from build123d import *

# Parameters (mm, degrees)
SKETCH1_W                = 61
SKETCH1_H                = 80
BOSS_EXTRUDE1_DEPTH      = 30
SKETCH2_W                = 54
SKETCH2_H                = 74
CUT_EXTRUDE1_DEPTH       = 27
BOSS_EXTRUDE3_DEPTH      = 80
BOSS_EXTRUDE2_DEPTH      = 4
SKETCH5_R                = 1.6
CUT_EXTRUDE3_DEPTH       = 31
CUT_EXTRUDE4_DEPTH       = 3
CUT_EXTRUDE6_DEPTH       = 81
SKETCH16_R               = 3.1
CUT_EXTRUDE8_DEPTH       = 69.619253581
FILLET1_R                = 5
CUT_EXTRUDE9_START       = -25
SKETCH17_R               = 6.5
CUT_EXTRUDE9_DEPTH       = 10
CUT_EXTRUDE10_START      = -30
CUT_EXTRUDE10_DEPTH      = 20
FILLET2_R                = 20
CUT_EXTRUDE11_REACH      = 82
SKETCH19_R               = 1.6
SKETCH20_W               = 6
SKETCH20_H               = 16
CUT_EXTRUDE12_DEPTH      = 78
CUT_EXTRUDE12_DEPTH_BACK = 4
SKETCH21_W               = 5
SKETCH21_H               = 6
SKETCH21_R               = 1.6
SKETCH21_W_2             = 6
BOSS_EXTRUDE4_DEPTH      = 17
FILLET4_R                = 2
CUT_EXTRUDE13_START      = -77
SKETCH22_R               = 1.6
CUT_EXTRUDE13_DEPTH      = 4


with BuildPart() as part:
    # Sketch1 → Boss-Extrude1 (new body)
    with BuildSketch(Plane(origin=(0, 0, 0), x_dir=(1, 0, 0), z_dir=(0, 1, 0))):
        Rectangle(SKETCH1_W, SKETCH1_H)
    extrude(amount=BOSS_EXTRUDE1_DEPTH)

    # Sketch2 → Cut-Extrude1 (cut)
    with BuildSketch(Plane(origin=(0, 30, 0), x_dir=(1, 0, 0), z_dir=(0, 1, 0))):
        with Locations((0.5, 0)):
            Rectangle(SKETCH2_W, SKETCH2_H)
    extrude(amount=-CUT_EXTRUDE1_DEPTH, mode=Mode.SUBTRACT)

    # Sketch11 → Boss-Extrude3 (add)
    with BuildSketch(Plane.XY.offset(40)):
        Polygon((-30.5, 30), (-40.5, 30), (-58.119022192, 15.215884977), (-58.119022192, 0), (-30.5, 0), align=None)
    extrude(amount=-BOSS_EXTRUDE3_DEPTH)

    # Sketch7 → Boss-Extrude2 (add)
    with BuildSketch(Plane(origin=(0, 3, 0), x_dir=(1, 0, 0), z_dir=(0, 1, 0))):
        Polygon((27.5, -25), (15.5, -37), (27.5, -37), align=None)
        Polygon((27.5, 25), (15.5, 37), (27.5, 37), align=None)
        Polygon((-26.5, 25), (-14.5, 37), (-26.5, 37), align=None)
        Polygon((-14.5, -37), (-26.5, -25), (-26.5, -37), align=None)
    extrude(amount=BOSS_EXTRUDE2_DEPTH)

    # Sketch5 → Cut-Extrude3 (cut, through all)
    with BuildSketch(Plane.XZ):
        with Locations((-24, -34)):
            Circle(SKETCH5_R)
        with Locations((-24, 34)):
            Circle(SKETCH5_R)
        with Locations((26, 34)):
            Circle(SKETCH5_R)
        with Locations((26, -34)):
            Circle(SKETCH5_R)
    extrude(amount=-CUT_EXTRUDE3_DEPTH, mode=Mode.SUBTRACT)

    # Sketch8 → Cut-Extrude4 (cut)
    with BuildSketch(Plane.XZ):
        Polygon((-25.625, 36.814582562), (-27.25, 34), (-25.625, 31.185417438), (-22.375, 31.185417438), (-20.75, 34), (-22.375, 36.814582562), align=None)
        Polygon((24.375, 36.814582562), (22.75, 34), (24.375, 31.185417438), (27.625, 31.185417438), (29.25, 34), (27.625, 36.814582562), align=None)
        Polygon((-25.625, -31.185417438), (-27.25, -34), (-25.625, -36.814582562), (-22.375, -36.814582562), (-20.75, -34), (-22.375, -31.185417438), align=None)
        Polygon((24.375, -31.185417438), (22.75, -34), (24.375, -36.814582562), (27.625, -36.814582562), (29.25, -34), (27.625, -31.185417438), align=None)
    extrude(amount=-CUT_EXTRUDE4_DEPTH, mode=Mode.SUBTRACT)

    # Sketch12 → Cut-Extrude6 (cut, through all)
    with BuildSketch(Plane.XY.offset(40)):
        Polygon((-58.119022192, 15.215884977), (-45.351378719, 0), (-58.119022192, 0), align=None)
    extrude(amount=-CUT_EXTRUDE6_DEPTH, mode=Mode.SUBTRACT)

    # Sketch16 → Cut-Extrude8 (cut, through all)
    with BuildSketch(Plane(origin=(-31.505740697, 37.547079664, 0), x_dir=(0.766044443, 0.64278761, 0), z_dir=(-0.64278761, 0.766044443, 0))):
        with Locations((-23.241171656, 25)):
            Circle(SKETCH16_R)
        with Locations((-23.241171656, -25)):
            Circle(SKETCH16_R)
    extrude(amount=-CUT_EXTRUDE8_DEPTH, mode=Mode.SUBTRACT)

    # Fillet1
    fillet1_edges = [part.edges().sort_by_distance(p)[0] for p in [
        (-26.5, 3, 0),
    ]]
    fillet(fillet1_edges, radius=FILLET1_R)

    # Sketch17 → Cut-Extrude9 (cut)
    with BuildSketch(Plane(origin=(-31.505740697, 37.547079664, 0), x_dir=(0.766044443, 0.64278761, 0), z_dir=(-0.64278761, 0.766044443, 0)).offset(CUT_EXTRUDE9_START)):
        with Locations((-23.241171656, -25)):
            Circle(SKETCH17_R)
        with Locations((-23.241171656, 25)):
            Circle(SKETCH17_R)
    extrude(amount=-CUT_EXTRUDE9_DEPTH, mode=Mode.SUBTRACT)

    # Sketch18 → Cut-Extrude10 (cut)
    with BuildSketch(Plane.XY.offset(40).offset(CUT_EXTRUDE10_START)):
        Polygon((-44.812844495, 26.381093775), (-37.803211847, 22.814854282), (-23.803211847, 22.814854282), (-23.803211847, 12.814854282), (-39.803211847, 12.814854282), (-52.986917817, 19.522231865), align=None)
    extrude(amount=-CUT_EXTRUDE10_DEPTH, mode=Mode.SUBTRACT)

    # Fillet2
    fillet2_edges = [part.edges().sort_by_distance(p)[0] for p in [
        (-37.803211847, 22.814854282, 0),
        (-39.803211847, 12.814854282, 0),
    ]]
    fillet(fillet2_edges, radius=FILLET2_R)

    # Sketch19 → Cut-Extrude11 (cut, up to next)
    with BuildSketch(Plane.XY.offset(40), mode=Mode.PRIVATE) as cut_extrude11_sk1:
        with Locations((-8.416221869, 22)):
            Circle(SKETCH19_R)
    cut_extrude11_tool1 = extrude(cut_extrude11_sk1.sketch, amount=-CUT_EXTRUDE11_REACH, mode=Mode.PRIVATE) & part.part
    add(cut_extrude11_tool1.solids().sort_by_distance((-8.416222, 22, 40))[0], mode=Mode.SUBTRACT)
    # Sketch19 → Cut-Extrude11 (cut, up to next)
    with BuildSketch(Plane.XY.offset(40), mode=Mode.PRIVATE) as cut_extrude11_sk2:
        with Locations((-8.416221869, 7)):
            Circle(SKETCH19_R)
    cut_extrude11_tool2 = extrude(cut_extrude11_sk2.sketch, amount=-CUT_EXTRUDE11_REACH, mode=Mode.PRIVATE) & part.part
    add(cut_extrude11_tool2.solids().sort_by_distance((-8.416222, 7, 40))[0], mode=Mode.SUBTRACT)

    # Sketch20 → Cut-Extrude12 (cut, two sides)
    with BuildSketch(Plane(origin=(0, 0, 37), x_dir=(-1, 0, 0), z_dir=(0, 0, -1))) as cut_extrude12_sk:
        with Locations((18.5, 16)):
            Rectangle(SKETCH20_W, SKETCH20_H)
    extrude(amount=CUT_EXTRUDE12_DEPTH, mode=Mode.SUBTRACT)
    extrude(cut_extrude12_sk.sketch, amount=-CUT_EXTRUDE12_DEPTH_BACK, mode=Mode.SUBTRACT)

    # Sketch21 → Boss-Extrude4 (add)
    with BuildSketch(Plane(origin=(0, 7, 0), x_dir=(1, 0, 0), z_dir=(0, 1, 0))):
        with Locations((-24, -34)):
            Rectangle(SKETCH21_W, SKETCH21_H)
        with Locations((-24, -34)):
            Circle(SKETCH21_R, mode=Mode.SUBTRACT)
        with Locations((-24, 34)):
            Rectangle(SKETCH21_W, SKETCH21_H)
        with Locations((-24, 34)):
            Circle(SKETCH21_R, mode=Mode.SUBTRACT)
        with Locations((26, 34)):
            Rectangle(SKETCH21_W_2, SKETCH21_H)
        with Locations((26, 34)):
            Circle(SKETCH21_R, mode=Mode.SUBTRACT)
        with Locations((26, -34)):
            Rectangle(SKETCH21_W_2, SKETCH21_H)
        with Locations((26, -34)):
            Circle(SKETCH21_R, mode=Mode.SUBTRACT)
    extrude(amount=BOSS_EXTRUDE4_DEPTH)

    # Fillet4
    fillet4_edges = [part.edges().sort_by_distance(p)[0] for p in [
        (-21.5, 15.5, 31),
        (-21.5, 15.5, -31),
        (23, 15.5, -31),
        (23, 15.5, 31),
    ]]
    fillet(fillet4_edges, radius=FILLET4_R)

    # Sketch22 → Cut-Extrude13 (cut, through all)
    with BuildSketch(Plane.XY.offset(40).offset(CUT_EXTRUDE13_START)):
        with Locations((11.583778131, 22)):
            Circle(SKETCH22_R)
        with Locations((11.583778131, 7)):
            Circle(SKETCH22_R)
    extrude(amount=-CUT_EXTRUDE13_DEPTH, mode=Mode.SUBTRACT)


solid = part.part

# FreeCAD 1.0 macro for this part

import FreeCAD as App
import Part
import Sketcher

V = App.Vector
Q = App.Units.Quantity


def edges_at(feature, points):
    """Names of the edges that pass closest to the given points."""
    edges = feature.Shape.Edges
    near = lambda p: min(range(len(edges)), key=lambda i: edges[i].distToShape(Part.Vertex(*p))[0])
    return sorted({f"Edge{near(p) + 1}" for p in points})


def add_polygon(sketch, points):
    """Adds a closed chain of lines whose ends are joined by coincident constraints."""
    first, n = sketch.GeometryCount, len(points)
    for a, b in zip(points, points[1:] + points[:1]):
        sketch.addGeometry(Part.LineSegment(App.Vector(*a, 0), App.Vector(*b, 0)), False)
    for i in range(n):
        sketch.addConstraint(Sketcher.Constraint("Coincident", first + i, 2, first + (i + 1) % n, 1))

doc = App.newDocument("Part")
body = doc.addObject("PartDesign::Body", "Body")

sketch1 = body.newObject("Sketcher::SketchObject", "Sketch")
sketch1.AttachmentSupport = (doc.getObject("XZ_Plane"), [""])
sketch1.MapMode = "FlatFace"
add_polygon(sketch1, [(-30, -40), (-30, 40), (30, 40), (30, -40)])
sketch1.addConstraint([
    Sketcher.Constraint("Vertical", 0),
    Sketcher.Constraint("Horizontal", 1),
    Sketcher.Constraint("Vertical", 2),
    Sketcher.Constraint("Horizontal", 3),
    Sketcher.Constraint("Symmetric", 0, 2, 2, 2, -1, 1),
    Sketcher.Constraint("DistanceX", 1, 1, 1, 2, Q("61 mm")),
    Sketcher.Constraint("DistanceY", 0, 1, 0, 2, Q("80 mm")),
])
pad1 = body.newObject("PartDesign::Pad", "Pad")
pad1.Profile = sketch1
pad1.Length = 30
pad1.Reversed = True

sketch2 = body.newObject("Sketcher::SketchObject", "Sketch001")
sketch2.AttachmentSupport = (doc.getObject("XZ_Plane"), [""])
sketch2.MapMode = "FlatFace"
sketch2.AttachmentOffset = App.Placement(V(0, 0, -30), App.Rotation())
add_polygon(sketch2, [(-26, -37), (-26, 37), (28, 37), (28, -37)])
sketch2.addConstraint([
    Sketcher.Constraint("Vertical", 0),
    Sketcher.Constraint("Horizontal", 1),
    Sketcher.Constraint("Vertical", 2),
    Sketcher.Constraint("Horizontal", 3),
    Sketcher.Constraint("DistanceX", 1, 1, 1, 2, Q("54 mm")),
    Sketcher.Constraint("DistanceY", 0, 1, 0, 2, Q("74 mm")),
    Sketcher.Constraint("DistanceY", -1, 1, 0, 2, Q("37 mm")),
    Sketcher.Constraint("DistanceX", 0, 2, -1, 1, Q("26.5 mm")),
])
pocket1 = body.newObject("PartDesign::Pocket", "Pocket")
pocket1.Profile = sketch2
pocket1.Length = 27
pocket1.Reversed = True

sketch3 = body.newObject("Sketcher::SketchObject", "Sketch002")
sketch3.AttachmentSupport = (doc.getObject("XY_Plane"), [""])
sketch3.MapMode = "FlatFace"
sketch3.AttachmentOffset = App.Placement(V(0, 0, 40), App.Rotation())
add_polygon(sketch3, [(-30, 30), (-40, 30), (-58, 15), (-58, 0), (-30, 0)])
sketch3.addConstraint([
    Sketcher.Constraint("Horizontal", 0),
    Sketcher.Constraint("Vertical", 2),
    Sketcher.Constraint("Horizontal", 3),
    Sketcher.Constraint("Vertical", 4),
    Sketcher.Constraint("PointOnObject", 2, 2, -1),
    Sketcher.Constraint("DistanceX", 0, 2, 0, 1, Q("10 mm")),
    Sketcher.Constraint("DistanceY", 4, 1, 4, 2, Q("30 mm")),
    Sketcher.Constraint("Angle", 1, Q("-140 deg")),
    Sketcher.Constraint("Distance", 1, Q("23 mm")),
    Sketcher.Constraint("DistanceX", 0, 2, -1, 1, Q("40.5 mm")),
])
pad2 = body.newObject("PartDesign::Pad", "Pad001")
pad2.Profile = sketch3
pad2.Length = 80
pad2.Reversed = True

sketch4 = body.newObject("Sketcher::SketchObject", "Sketch003")
sketch4.AttachmentSupport = (doc.getObject("XZ_Plane"), [""])
sketch4.MapMode = "FlatFace"
sketch4.AttachmentOffset = App.Placement(V(0, 0, -3), App.Rotation())
add_polygon(sketch4, [(28, 25), (16, 37), (28, 37)])
add_polygon(sketch4, [(16, -37), (28, -25), (28, -37)])
add_polygon(sketch4, [(-26, -25), (-14, -37), (-26, -37)])
add_polygon(sketch4, [(-14, 37), (-26, 25), (-26, 37)])
sketch4.addConstraint([
    Sketcher.Constraint("Horizontal", 1),
    Sketcher.Constraint("Vertical", 2),
    Sketcher.Constraint("Vertical", 4),
    Sketcher.Constraint("Horizontal", 5),
    Sketcher.Constraint("Horizontal", 7),
    Sketcher.Constraint("Vertical", 8),
    Sketcher.Constraint("Vertical", 10),
    Sketcher.Constraint("Horizontal", 11),
    Sketcher.Constraint("Symmetric", 2, 2, 3, 2, -1),
    Sketcher.Constraint("Symmetric", 0, 2, 5, 2, -1),
    Sketcher.Constraint("Symmetric", 8, 2, 9, 2, -1),
    Sketcher.Constraint("Symmetric", 6, 2, 11, 2, -1),
    Sketcher.Constraint("Perpendicular", 0, 3),
    Sketcher.Constraint("Perpendicular", 3, 6),
    Sketcher.Constraint("Horizontal", 5, 2, 6, 2),
    Sketcher.Constraint("Horizontal", 3, 2, 8, 2),
    Sketcher.Constraint("DistanceX", 1, 1, 1, 2, Q("12 mm")),
    Sketcher.Constraint("DistanceY", -1, 1, 0, 2, Q("37 mm")),
    Sketcher.Constraint("DistanceX", 6, 2, 5, 2, Q("30 mm")),
    Sketcher.Constraint("DistanceX", -1, 1, 0, 2, Q("15.5 mm")),
])
pad3 = body.newObject("PartDesign::Pad", "Pad002")
pad3.Profile = sketch4
pad3.Length = 4
pad3.Reversed = True

sketch5 = body.newObject("Sketcher::SketchObject", "Sketch004")
sketch5.AttachmentSupport = (doc.getObject("XZ_Plane"), [""])
sketch5.MapMode = "FlatFace"
sketch5.addGeometry([
    Part.Circle(V(-24, -34, 0), V(0, 0, 1), 1.6),
    Part.Circle(V(-24, 34, 0), V(0, 0, 1), 1.6),
    Part.Circle(V(26, 34, 0), V(0, 0, 1), 1.6),
    Part.Circle(V(26, -34, 0), V(0, 0, 1), 1.6),
], False)
sketch5.addConstraint([
    Sketcher.Constraint("Equal", 0, 1),
    Sketcher.Constraint("Equal", 1, 2),
    Sketcher.Constraint("Equal", 2, 3),
    Sketcher.Constraint("Symmetric", 0, 3, 1, 3, -1),
    Sketcher.Constraint("Symmetric", 2, 3, 3, 3, -1),
    Sketcher.Constraint("Horizontal", 1, 3, 2, 3),
    Sketcher.Constraint("Diameter", 0, Q("3.2 mm")),
    Sketcher.Constraint("DistanceX", 0, 3, -1, 1, Q("24 mm")),
    Sketcher.Constraint("DistanceY", 0, 3, -1, 1, Q("34 mm")),
    Sketcher.Constraint("DistanceX", -1, 1, 2, 3, Q("26 mm")),
])
pocket2 = body.newObject("PartDesign::Pocket", "Pocket001")
pocket2.Profile = sketch5
pocket2.Type = "ThroughAll"

sketch6 = body.newObject("Sketcher::SketchObject", "Sketch005")
sketch6.AttachmentSupport = (doc.getObject("XZ_Plane"), [""])
sketch6.MapMode = "FlatFace"
add_polygon(sketch6, [(-25.6, 36.8), (-27.2, 34), (-25.6, 31.2), (-22.4, 31.2), (-20.8, 34), (-22.4, 36.8)])
add_polygon(sketch6, [(24.4, 36.8), (22.8, 34), (24.4, 31.2), (27.6, 31.2), (29.2, 34), (27.6, 36.8)])
add_polygon(sketch6, [(-25.6, -31.2), (-27.2, -34), (-25.6, -36.8), (-22.4, -36.8), (-20.8, -34), (-22.4, -31.2)])
add_polygon(sketch6, [(24.4, -31.2), (22.8, -34), (24.4, -36.8), (27.6, -36.8), (29.2, -34), (27.6, -31.2)])
sketch6.addConstraint([
    Sketcher.Constraint("Horizontal", 2),
    Sketcher.Constraint("Horizontal", 5),
    Sketcher.Constraint("Horizontal", 8),
    Sketcher.Constraint("Horizontal", 11),
    Sketcher.Constraint("Horizontal", 14),
    Sketcher.Constraint("Horizontal", 17),
    Sketcher.Constraint("Horizontal", 20),
    Sketcher.Constraint("Horizontal", 23),
    Sketcher.Constraint("Symmetric", 0, 2, 12, 2, -1),
    Sketcher.Constraint("Symmetric", 5, 2, 13, 2, -1),
    Sketcher.Constraint("Symmetric", 3, 2, 15, 2, -1),
    Sketcher.Constraint("Symmetric", 2, 2, 16, 2, -1),
    Sketcher.Constraint("Symmetric", 6, 2, 18, 2, -1),
    Sketcher.Constraint("Symmetric", 11, 2, 19, 2, -1),
    Sketcher.Constraint("Symmetric", 9, 2, 21, 2, -1),
    Sketcher.Constraint("Symmetric", 8, 2, 22, 2, -1),
    Sketcher.Constraint("Parallel", 0, 3),
    Sketcher.Constraint("Parallel", 1, 4),
    Sketcher.Constraint("Parallel", 3, 6),
    Sketcher.Constraint("Parallel", 4, 7),
    Sketcher.Constraint("Parallel", 6, 9),
    Sketcher.Constraint("Parallel", 7, 10),
    Sketcher.Constraint("Parallel", 9, 12),
    Sketcher.Constraint("Parallel", 10, 13),
    Sketcher.Constraint("Parallel", 12, 15),
    Sketcher.Constraint("Parallel", 15, 18),
    Sketcher.Constraint("Parallel", 18, 21),
    Sketcher.Constraint("Horizontal", 0, 2, 3, 2),
    Sketcher.Constraint("Horizontal", 3, 2, 6, 2),
    Sketcher.Constraint("Horizontal", 2, 2, 7, 2),
    Sketcher.Constraint("Horizontal", 6, 2, 9, 2),
    Sketcher.Constraint("Horizontal", 5, 2, 10, 2),
    Sketcher.Constraint("Vertical", 2, 2, 4, 2),
    Sketcher.Constraint("Equal", 5, 8),
    Sketcher.Constraint("Angle", 0, Q("-120 deg")),
    Sketcher.Constraint("DistanceY", -1, 1, 0, 2, Q("34 mm")),
    Sketcher.Constraint("DistanceX", 1, 2, 7, 2, Q("50 mm")),
    Sketcher.Constraint("DistanceX", 2, 1, 2, 2, Q("3.25 mm")),
    Sketcher.Constraint("DistanceX", 0, 2, 3, 2, Q("6.5 mm")),
    Sketcher.Constraint("DistanceX", 0, 2, -1, 1, Q("27.25 mm")),
])
pocket3 = body.newObject("PartDesign::Pocket", "Pocket002")
pocket3.Profile = sketch6
pocket3.Length = 3

sketch7 = body.newObject("Sketcher::SketchObject", "Sketch006")
sketch7.AttachmentSupport = (doc.getObject("XY_Plane"), [""])
sketch7.MapMode = "FlatFace"
sketch7.AttachmentOffset = App.Placement(V(0, 0, 40), App.Rotation())
add_polygon(sketch7, [(-45, 0), (-58, 15), (-58, 0)])
sketch7.addConstraint([
    Sketcher.Constraint("Vertical", 1),
    Sketcher.Constraint("Horizontal", 2),
    Sketcher.Constraint("PointOnObject", 1, 2, -1),
    Sketcher.Constraint("Angle", 0, Q("130 deg")),
    Sketcher.Constraint("DistanceX", 2, 1, 2, 2, Q("12.767643 mm")),
    Sketcher.Constraint("DistanceX", 2, 2, -1, 1, Q("45.351379 mm")),
])
pocket4 = body.newObject("PartDesign::Pocket", "Pocket003")
pocket4.Profile = sketch7
pocket4.Type = "ThroughAll"

sketch8 = body.newObject("Sketcher::SketchObject", "Sketch007")
sketch8.Placement = App.Placement(V(-31.505741, 37.54708, 0), App.Rotation(V(0.766044443, 0.64278761, 0), V(0, 0, -1), V(-0.64278761, 0.766044443, 0), "ZXY"))
sketch8.addGeometry([
    Part.Circle(V(-23.2, 25, 0), V(0, 0, 1), 3.1),
    Part.Circle(V(-23.2, -25, 0), V(0, 0, 1), 3.1),
], False)
sketch8.addConstraint([
    Sketcher.Constraint("Equal", 0, 1),
    Sketcher.Constraint("Symmetric", 0, 3, 1, 3, -1),
    Sketcher.Constraint("Diameter", 0, Q("6.2 mm")),
    Sketcher.Constraint("DistanceY", -1, 1, 0, 3, Q("25 mm")),
    Sketcher.Constraint("DistanceX", 0, 3, -1, 1, Q("23.241172 mm")),
])
pocket5 = body.newObject("PartDesign::Pocket", "Pocket004")
pocket5.Profile = sketch8
pocket5.Type = "ThroughAll"
doc.recompute()

fillet = body.newObject("PartDesign::Fillet", "Fillet")
fillet.Base = (pocket5, edges_at(pocket5, [(-26.5, 3, 0)]))
fillet.Radius = 5

sketch9 = body.newObject("Sketcher::SketchObject", "Sketch008")
sketch9.Placement = App.Placement(V(-15.43605, 18.395969, 0), App.Rotation(V(0.766044443, 0.64278761, 0), V(0, 0, -1), V(-0.64278761, 0.766044443, 0), "ZXY"))
sketch9.addGeometry([
    Part.Circle(V(-23, -25, 0), V(0, 0, 1), 6),
    Part.Circle(V(-23, 25, 0), V(0, 0, 1), 6),
], False)
sketch9.addConstraint([
    Sketcher.Constraint("Equal", 0, 1),
    Sketcher.Constraint("Symmetric", 0, 3, 1, 3, -1),
    Sketcher.Constraint("Diameter", 0, Q("13 mm")),
    Sketcher.Constraint("DistanceY", 0, 3, -1, 1, Q("25 mm")),
    Sketcher.Constraint("DistanceX", 0, 3, -1, 1, Q("23.241172 mm")),
])
pocket6 = body.newObject("PartDesign::Pocket", "Pocket005")
pocket6.Profile = sketch9
pocket6.Length = 10

sketch10 = body.newObject("Sketcher::SketchObject", "Sketch009")
sketch10.AttachmentSupport = (doc.getObject("XY_Plane"), [""])
sketch10.MapMode = "FlatFace"
sketch10.AttachmentOffset = App.Placement(V(0, 0, 10), App.Rotation())
add_polygon(sketch10, [(-38, 23), (-45, 26), (-53, 20), (-40, 13), (-24, 13), (-24, 23)])
sketch10.addConstraint([
    Sketcher.Constraint("Horizontal", 3),
    Sketcher.Constraint("Vertical", 4),
    Sketcher.Constraint("Horizontal", 5),
    Sketcher.Constraint("Parallel", 0, 2),
    Sketcher.Constraint("DistanceX", 3, 1, 3, 2, Q("16 mm")),
    Sketcher.Constraint("DistanceX", 5, 2, 5, 1, Q("14 mm")),
    Sketcher.Constraint("DistanceY", 4, 1, 4, 2, Q("10 mm")),
    Sketcher.Constraint("Angle", 1, Q("-140 deg")),
    Sketcher.Constraint("Distance", 0, Q("7.864669 mm")),
    Sketcher.Constraint("DistanceY", -1, 1, 1, 2, Q("19.522232 mm")),
    Sketcher.Constraint("DistanceX", 2, 2, -1, 1, Q("39.803212 mm")),
    Sketcher.Constraint("DistanceY", 1, 2, 0, 2, Q("6.858862 mm")),
])
pocket7 = body.newObject("PartDesign::Pocket", "Pocket006")
pocket7.Profile = sketch10
pocket7.Length = 20
doc.recompute()

fillet2 = body.newObject("PartDesign::Fillet", "Fillet001")
fillet2.Base = (pocket7, edges_at(pocket7, [(-37.803, 22.815, 0), (-39.803, 12.815, 0)]))
fillet2.Radius = 20

sketch11 = body.newObject("Sketcher::SketchObject", "Sketch010")
sketch11.AttachmentSupport = (doc.getObject("XY_Plane"), [""])
sketch11.MapMode = "FlatFace"
sketch11.AttachmentOffset = App.Placement(V(0, 0, 40), App.Rotation())
sketch11.addGeometry(Part.Circle(V(-8.4, 22, 0), V(0, 0, 1), 1.6), False)
sketch11.addConstraint([
    Sketcher.Constraint("Diameter", 0, Q("3.2 mm")),
    Sketcher.Constraint("DistanceY", -1, 1, 0, 3, Q("22 mm")),
    Sketcher.Constraint("DistanceX", 0, 3, -1, 1, Q("8.416222 mm")),
])
pocket8 = body.newObject("PartDesign::Pocket", "Pocket007")
pocket8.Profile = sketch11
pocket8.Type = "UpToFirst"

sketch12 = body.newObject("Sketcher::SketchObject", "Sketch011")
sketch12.AttachmentSupport = (doc.getObject("XY_Plane"), [""])
sketch12.MapMode = "FlatFace"
sketch12.AttachmentOffset = App.Placement(V(0, 0, 40), App.Rotation())
sketch12.addGeometry(Part.Circle(V(-8.4, 7, 0), V(0, 0, 1), 1.6), False)
sketch12.addConstraint([
    Sketcher.Constraint("Diameter", 0, Q("3.2 mm")),
    Sketcher.Constraint("DistanceY", -1, 1, 0, 3, Q("7 mm")),
    Sketcher.Constraint("DistanceX", 0, 3, -1, 1, Q("8.416222 mm")),
])
pocket9 = body.newObject("PartDesign::Pocket", "Pocket008")
pocket9.Profile = sketch12
pocket9.Type = "UpToFirst"

sketch13 = body.newObject("Sketcher::SketchObject", "Sketch012")
sketch13.AttachmentSupport = (doc.getObject("XY_Plane"), [""])
sketch13.MapMode = "FlatFace"
sketch13.AttachmentOffset = App.Placement(V(0, 0, 37), App.Rotation())
add_polygon(sketch13, [(-16, 24), (-16, 8), (-22, 8), (-22, 24)])
sketch13.addConstraint([
    Sketcher.Constraint("Vertical", 0),
    Sketcher.Constraint("Horizontal", 1),
    Sketcher.Constraint("Vertical", 2),
    Sketcher.Constraint("Horizontal", 3),
    Sketcher.Constraint("DistanceX", 1, 2, 1, 1, Q("6 mm")),
    Sketcher.Constraint("DistanceY", 0, 2, 0, 1, Q("16 mm")),
    Sketcher.Constraint("DistanceY", -1, 1, 0, 2, Q("8 mm")),
    Sketcher.Constraint("DistanceX", 0, 2, -1, 1, Q("15.5 mm")),
])
pocket10 = body.newObject("PartDesign::Pocket", "Pocket009")
pocket10.Profile = sketch13
pocket10.Type = "ThroughAll"
pocket10.Midplane = True

sketch14 = body.newObject("Sketcher::SketchObject", "Sketch013")
sketch14.AttachmentSupport = (doc.getObject("XZ_Plane"), [""])
sketch14.MapMode = "FlatFace"
sketch14.AttachmentOffset = App.Placement(V(0, 0, -7), App.Rotation())
add_polygon(sketch14, [(-26.5, 31), (-26.5, 37), (-21.5, 37), (-21.5, 31)])
sketch14.addGeometry(Part.Circle(V(-24, 34, 0), V(0, 0, 1), 1.6), False)
add_polygon(sketch14, [(-26.5, -37), (-26.5, -31), (-21.5, -31), (-21.5, -37)])
sketch14.addGeometry(Part.Circle(V(-24, -34, 0), V(0, 0, 1), 1.6), False)
add_polygon(sketch14, [(23, -37), (23, -31), (29, -31), (29, -37)])
sketch14.addGeometry(Part.Circle(V(26, -34, 0), V(0, 0, 1), 1.6), False)
add_polygon(sketch14, [(23, 31), (23, 37), (29, 37), (29, 31)])
sketch14.addGeometry(Part.Circle(V(26, 34, 0), V(0, 0, 1), 1.6), False)
sketch14.addConstraint([
    Sketcher.Constraint("Vertical", 0),
    Sketcher.Constraint("Horizontal", 1),
    Sketcher.Constraint("Vertical", 2),
    Sketcher.Constraint("Horizontal", 3),
    Sketcher.Constraint("Vertical", 5),
    Sketcher.Constraint("Horizontal", 6),
    Sketcher.Constraint("Vertical", 7),
    Sketcher.Constraint("Horizontal", 8),
    Sketcher.Constraint("Vertical", 10),
    Sketcher.Constraint("Horizontal", 11),
    Sketcher.Constraint("Vertical", 12),
    Sketcher.Constraint("Horizontal", 13),
    Sketcher.Constraint("Vertical", 15),
    Sketcher.Constraint("Horizontal", 16),
    Sketcher.Constraint("Vertical", 17),
    Sketcher.Constraint("Horizontal", 18),
    Sketcher.Constraint("Equal", 4, 9),
    Sketcher.Constraint("Equal", 9, 14),
    Sketcher.Constraint("Equal", 14, 19),
    Sketcher.Constraint("Symmetric", 4, 3, 9, 3, -1),
    Sketcher.Constraint("Symmetric", 14, 3, 19, 3, -1),
    Sketcher.Constraint("Symmetric", 3, 2, 5, 2, -1),
    Sketcher.Constraint("Symmetric", 1, 2, 7, 2, -1),
    Sketcher.Constraint("Symmetric", 13, 2, 15, 2, -1),
    Sketcher.Constraint("Symmetric", 11, 2, 17, 2, -1),
    Sketcher.Constraint("Horizontal", 9, 3, 14, 3),
    Sketcher.Constraint("Horizontal", 6, 2, 10, 2),
    Sketcher.Constraint("Horizontal", 8, 2, 12, 2),
    Sketcher.Constraint("Equal", 18, 0),
    Sketcher.Constraint("Diameter", 4, Q("3.2 mm")),
    Sketcher.Constraint("DistanceX", 1, 1, 1, 2, Q("5 mm")),
    Sketcher.Constraint("DistanceX", 11, 1, 11, 2, Q("6 mm")),
    Sketcher.Constraint("DistanceX", 4, 3, -1, 1, Q("24 mm")),
    Sketcher.Constraint("DistanceY", -1, 1, 4, 3, Q("34 mm")),
    Sketcher.Constraint("DistanceX", -1, 1, 14, 3, Q("26 mm")),
    Sketcher.Constraint("DistanceY", -1, 1, 0, 2, Q("37 mm")),
    Sketcher.Constraint("DistanceX", -1, 1, 10, 2, Q("23 mm")),
    Sketcher.Constraint("DistanceX", 0, 2, -1, 1, Q("26.5 mm")),
])
pad4 = body.newObject("PartDesign::Pad", "Pad003")
pad4.Profile = sketch14
pad4.Length = 17
pad4.Reversed = True
doc.recompute()

fillet3 = body.newObject("PartDesign::Fillet", "Fillet002")
fillet3.Base = (pad4, edges_at(pad4, [
    (-21.5, 15.5, 31),
    (-21.5, 15.5, -31),
    (23, 15.5, -31),
    (23, 15.5, 31),
]))
fillet3.Radius = 2

sketch15 = body.newObject("Sketcher::SketchObject", "Sketch014")
sketch15.AttachmentSupport = (doc.getObject("XY_Plane"), [""])
sketch15.MapMode = "FlatFace"
sketch15.AttachmentOffset = App.Placement(V(0, 0, -37), App.Rotation())
sketch15.addGeometry([
    Part.Circle(V(11.6, 22, 0), V(0, 0, 1), 1.6),
    Part.Circle(V(11.6, 7, 0), V(0, 0, 1), 1.6),
], False)
sketch15.addConstraint([
    Sketcher.Constraint("Equal", 0, 1),
    Sketcher.Constraint("Vertical", 0, 3, 1, 3),
    Sketcher.Constraint("Diameter", 0, Q("3.2 mm")),
    Sketcher.Constraint("DistanceY", -1, 1, 0, 3, Q("22 mm")),
    Sketcher.Constraint("DistanceY", -1, 1, 1, 3, Q("7 mm")),
    Sketcher.Constraint("DistanceX", -1, 1, 0, 3, Q("11.583778 mm")),
])
pocket11 = body.newObject("PartDesign::Pocket", "Pocket010")
pocket11.Profile = sketch15
pocket11.Type = "ThroughAll"

doc.recompute()
